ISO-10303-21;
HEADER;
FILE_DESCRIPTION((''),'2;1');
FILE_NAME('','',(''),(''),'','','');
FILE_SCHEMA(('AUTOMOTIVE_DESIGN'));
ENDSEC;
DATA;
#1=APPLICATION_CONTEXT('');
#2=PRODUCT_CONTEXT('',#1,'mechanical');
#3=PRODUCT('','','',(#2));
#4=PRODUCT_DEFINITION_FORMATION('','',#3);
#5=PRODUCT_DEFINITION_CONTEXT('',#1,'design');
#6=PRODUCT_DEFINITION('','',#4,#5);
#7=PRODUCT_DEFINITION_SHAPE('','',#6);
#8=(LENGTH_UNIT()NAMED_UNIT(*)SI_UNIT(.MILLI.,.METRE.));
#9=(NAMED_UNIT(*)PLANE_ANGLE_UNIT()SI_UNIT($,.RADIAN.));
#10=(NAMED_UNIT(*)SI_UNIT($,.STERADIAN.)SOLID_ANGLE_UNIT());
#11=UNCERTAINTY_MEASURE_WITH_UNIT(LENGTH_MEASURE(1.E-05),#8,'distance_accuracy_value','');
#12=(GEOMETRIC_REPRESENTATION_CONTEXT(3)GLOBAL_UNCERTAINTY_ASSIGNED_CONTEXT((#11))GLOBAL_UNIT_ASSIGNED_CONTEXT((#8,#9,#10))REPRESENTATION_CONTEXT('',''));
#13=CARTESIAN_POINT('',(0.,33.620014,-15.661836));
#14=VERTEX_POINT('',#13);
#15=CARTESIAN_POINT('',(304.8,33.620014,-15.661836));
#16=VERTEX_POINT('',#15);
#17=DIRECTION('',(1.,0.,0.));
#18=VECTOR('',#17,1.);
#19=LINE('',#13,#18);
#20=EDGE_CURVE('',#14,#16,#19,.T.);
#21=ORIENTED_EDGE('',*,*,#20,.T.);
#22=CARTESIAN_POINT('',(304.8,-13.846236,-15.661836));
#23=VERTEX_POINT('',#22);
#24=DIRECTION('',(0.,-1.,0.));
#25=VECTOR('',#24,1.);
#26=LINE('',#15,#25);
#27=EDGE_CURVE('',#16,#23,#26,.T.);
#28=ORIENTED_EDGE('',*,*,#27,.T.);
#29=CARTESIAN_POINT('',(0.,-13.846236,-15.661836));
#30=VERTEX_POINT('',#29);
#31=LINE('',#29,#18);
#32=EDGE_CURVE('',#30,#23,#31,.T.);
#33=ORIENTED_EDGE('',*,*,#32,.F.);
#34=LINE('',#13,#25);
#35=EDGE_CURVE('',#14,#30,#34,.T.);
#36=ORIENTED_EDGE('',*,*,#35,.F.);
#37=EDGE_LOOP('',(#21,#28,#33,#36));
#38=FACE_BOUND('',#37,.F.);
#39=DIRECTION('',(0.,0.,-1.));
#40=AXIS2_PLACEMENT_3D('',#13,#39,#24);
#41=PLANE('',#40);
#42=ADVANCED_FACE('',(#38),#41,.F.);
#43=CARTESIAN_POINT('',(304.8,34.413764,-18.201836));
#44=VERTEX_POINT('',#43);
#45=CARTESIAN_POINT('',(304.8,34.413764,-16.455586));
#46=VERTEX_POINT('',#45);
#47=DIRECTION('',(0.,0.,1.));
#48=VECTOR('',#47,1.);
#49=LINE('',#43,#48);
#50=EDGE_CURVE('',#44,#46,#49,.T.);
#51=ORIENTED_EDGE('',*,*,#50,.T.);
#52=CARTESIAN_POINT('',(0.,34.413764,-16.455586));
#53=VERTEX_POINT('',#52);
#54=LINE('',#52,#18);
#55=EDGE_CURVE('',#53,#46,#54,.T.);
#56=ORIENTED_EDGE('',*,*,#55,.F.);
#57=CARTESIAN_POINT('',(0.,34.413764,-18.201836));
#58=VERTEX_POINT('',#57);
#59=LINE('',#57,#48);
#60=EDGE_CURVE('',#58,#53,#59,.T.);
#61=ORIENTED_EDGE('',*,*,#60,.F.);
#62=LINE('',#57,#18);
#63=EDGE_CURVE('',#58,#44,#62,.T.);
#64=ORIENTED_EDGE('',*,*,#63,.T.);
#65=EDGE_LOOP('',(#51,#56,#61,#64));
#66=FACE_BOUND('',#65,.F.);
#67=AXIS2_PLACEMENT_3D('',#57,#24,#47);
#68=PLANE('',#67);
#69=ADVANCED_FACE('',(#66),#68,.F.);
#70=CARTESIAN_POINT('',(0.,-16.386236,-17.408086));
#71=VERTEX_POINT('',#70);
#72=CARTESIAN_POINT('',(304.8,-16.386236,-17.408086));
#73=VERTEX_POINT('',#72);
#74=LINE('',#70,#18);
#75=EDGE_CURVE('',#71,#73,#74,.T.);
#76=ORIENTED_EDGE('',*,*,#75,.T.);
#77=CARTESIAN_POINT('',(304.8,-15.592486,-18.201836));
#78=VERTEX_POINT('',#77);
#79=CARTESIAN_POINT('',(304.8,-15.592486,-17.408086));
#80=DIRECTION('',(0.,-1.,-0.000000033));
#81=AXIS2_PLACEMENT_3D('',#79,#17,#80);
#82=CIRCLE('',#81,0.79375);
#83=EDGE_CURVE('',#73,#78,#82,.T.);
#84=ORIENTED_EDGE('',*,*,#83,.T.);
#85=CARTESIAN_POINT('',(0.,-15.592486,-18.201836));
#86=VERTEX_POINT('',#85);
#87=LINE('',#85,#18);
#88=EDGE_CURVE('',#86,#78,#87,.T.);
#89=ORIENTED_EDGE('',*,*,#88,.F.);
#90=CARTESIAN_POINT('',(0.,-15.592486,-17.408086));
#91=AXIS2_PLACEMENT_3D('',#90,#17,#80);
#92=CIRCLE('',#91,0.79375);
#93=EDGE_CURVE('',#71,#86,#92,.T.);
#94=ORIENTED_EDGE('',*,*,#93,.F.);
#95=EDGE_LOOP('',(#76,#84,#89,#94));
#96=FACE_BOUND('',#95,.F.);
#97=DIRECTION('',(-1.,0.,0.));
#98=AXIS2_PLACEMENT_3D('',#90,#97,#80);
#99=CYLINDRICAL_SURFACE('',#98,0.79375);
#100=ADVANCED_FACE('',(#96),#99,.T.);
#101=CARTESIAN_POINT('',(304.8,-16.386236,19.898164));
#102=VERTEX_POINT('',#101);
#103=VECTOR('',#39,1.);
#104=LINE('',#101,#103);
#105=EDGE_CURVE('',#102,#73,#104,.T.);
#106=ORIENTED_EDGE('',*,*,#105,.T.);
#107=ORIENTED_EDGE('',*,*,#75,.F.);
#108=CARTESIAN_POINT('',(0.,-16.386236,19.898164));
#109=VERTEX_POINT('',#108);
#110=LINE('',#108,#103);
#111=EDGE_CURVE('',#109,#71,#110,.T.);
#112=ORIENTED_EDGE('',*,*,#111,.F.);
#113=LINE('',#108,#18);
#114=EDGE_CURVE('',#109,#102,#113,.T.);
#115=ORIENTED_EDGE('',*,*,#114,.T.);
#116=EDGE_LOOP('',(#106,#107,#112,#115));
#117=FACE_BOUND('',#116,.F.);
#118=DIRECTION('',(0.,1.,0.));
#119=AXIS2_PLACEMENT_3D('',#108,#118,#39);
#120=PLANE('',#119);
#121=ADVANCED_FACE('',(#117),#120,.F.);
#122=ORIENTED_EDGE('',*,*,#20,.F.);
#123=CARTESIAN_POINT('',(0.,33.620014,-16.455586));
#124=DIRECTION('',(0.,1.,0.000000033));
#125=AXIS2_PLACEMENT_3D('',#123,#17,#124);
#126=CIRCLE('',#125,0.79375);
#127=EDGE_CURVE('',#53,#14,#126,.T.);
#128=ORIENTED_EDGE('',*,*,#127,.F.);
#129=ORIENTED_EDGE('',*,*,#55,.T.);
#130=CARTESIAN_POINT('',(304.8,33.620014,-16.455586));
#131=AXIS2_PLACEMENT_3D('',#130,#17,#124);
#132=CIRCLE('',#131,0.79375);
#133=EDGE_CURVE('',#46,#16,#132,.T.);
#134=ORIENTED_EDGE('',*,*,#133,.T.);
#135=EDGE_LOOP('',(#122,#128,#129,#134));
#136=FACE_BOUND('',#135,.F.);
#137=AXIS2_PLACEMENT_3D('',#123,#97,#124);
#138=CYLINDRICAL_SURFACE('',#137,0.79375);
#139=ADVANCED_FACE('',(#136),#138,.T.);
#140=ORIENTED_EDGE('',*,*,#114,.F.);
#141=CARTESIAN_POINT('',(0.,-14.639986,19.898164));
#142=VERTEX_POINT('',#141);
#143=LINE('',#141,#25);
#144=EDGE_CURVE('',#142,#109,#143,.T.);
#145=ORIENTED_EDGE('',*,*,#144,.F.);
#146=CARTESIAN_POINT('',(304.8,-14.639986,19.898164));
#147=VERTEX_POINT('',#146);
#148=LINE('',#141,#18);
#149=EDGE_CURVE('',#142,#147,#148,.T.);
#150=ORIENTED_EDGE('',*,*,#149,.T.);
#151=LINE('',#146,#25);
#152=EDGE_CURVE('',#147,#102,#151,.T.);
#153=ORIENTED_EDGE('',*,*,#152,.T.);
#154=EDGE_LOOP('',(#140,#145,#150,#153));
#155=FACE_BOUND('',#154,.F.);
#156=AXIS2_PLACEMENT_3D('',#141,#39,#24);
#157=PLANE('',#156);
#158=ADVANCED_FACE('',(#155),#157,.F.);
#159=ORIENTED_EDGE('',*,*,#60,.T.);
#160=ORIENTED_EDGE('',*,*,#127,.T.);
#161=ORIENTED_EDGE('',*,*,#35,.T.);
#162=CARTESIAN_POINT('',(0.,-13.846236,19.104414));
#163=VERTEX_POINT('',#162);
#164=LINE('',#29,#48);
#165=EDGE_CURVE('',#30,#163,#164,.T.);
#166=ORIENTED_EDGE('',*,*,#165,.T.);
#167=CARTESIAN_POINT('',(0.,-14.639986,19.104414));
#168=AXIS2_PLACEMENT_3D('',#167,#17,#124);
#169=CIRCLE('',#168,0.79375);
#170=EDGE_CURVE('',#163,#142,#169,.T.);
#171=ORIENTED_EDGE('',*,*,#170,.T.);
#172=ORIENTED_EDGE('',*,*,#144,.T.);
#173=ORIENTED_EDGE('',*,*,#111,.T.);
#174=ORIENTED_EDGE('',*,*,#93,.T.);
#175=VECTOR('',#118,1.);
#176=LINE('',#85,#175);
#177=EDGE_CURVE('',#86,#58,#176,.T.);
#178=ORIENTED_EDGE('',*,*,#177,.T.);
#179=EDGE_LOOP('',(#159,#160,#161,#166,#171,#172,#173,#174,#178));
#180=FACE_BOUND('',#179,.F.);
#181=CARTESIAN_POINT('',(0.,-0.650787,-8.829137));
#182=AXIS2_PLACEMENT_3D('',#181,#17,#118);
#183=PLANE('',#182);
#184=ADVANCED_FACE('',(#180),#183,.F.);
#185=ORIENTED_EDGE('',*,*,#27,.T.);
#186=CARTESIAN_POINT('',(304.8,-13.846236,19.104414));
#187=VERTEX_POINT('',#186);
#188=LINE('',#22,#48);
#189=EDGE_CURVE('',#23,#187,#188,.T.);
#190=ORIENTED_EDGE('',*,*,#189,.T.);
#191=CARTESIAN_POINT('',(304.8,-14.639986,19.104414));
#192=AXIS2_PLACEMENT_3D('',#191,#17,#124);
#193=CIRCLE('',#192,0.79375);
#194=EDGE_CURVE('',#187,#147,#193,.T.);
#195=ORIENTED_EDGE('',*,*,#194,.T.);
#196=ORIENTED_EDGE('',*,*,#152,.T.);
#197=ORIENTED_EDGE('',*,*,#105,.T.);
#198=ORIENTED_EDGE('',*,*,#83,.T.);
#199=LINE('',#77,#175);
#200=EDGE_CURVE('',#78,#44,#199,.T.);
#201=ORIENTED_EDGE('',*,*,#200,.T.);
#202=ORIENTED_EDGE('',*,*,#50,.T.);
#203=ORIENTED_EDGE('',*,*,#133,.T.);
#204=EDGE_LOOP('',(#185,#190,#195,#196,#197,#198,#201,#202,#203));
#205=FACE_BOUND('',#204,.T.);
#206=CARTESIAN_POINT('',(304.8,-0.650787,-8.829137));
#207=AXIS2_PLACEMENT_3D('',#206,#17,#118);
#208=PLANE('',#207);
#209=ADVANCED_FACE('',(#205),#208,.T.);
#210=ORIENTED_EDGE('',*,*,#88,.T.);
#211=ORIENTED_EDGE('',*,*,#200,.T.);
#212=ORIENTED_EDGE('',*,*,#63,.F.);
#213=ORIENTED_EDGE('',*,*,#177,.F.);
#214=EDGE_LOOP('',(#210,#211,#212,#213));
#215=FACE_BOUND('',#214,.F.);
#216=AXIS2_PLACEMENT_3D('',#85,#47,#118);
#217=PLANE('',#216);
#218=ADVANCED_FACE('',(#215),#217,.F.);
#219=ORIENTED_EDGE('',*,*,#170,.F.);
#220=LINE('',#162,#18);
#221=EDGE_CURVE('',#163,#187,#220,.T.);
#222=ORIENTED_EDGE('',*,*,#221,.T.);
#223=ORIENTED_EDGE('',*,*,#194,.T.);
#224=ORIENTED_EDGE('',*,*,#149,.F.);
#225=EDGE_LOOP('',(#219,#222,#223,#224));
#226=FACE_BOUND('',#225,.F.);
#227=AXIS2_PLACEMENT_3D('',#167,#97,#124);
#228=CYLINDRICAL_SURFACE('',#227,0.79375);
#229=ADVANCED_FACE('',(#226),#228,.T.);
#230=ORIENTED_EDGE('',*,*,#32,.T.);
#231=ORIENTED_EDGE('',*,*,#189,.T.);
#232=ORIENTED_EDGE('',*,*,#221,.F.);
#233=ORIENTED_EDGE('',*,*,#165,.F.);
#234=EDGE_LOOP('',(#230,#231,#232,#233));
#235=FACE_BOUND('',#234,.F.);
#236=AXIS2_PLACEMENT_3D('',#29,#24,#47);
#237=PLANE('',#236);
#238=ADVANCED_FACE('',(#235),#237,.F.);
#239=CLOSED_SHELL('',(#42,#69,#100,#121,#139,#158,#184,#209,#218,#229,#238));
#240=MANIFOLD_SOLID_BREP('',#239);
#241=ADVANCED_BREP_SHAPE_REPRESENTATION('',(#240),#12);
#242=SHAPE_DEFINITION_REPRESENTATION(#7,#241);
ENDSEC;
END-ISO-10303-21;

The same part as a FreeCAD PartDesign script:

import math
import FreeCAD as App
import Part
import Sketcher
Q = App.Units.Quantity

doc = App.newDocument("Part")
params = doc.addObject("Spreadsheet::Sheet", "Params")
for row, (alias, value) in enumerate([
    ("sketch1_radius", "0.03125 in"),
    ("pad1_length", "12 in"),
], start=1):
    params.set(f"A{row}", alias)
    params.set(f"B{row}", "=" + value)
    params.setAlias(f"B{row}", alias)

body = doc.addObject("PartDesign::Body", "Body")

# Sketch on YZ plane
sketch1 = doc.addObject("Sketcher::SketchObject", "Sketch")
body.addObject(sketch1)
sketch1.AttachmentSupport = (doc.YZ_Plane, [""])
sketch1.MapMode = "FlatFace"
sketch1.addGeometry(Part.LineSegment(App.Vector(-14.639986, 19.898164, 0), App.Vector(-16.386236, 19.898164, 0)), False)
sketch1.addGeometry(Part.LineSegment(App.Vector(-16.386236, 19.898164, 0), App.Vector(-16.386236, -17.408086, 0)), False)
sketch1.addGeometry(Part.ArcOfCircle(Part.Circle(App.Vector(-15.592486, -17.408086, 0), App.Vector(0, 0, 1), 0.79375), math.radians(-179.999998), math.radians(-90.000002)), False)
sketch1.addGeometry(Part.LineSegment(App.Vector(-15.592486, -18.201836, 0), App.Vector(34.413764, -18.201836, 0)), False)
sketch1.addGeometry(Part.LineSegment(App.Vector(34.413764, -18.201836, 0), App.Vector(34.413764, -16.455586, 0)), False)
sketch1.addGeometry(Part.ArcOfCircle(Part.Circle(App.Vector(33.620014, -16.455586, 0), App.Vector(0, 0, 1), 0.79375), math.radians(0.000002), math.radians(89.999998)), False)
sketch1.addGeometry(Part.LineSegment(App.Vector(33.620014, -15.661836, 0), App.Vector(-13.846236, -15.661836, 0)), False)
sketch1.addGeometry(Part.LineSegment(App.Vector(-13.846236, -15.661836, 0), App.Vector(-13.846236, 19.104414, 0)), False)
sketch1.addGeometry(Part.ArcOfCircle(Part.Circle(App.Vector(-14.639986, 19.104414, 0), App.Vector(0, 0, 1), 0.79375), math.radians(0.000002), math.radians(89.999998)), False)
sketch1.addConstraint(Sketcher.Constraint("Coincident", 0, 2, 1, 1))
sketch1.addConstraint(Sketcher.Constraint("Tangent", 1, 2, 2, 1))
sketch1.addConstraint(Sketcher.Constraint("Tangent", 2, 2, 3, 1))
sketch1.addConstraint(Sketcher.Constraint("Coincident", 3, 2, 4, 1))
sketch1.addConstraint(Sketcher.Constraint("Tangent", 4, 2, 5, 1))
sketch1.addConstraint(Sketcher.Constraint("Tangent", 5, 2, 6, 1))
sketch1.addConstraint(Sketcher.Constraint("Coincident", 6, 2, 7, 1))
sketch1.addConstraint(Sketcher.Constraint("Tangent", 7, 2, 8, 1))
sketch1.addConstraint(Sketcher.Constraint("Tangent", 8, 2, 0, 1))
sketch1.addConstraint(Sketcher.Constraint("Horizontal", 0))
sketch1.addConstraint(Sketcher.Constraint("Vertical", 1))
sketch1.addConstraint(Sketcher.Constraint("Horizontal", 3))
sketch1.addConstraint(Sketcher.Constraint("Vertical", 4))
sketch1.addConstraint(Sketcher.Constraint("Horizontal", 6))
sketch1.addConstraint(Sketcher.Constraint("Vertical", 7))
sketch1.addConstraint(Sketcher.Constraint("Equal", 2, 5))
sketch1.addConstraint(Sketcher.Constraint("Equal", 5, 8))
sketch1.addConstraint(Sketcher.Constraint("Equal", 0, 4))
sketch1.addConstraint(Sketcher.Constraint("Radius", 2, Q("0.03125 in")))
sketch1.addConstraint(Sketcher.Constraint("DistanceX", 1, 2, 3, 2, Q("2 in")))
sketch1.addConstraint(Sketcher.Constraint("DistanceX", 8, 3, 5, 3, Q("1.9 in")))
sketch1.addConstraint(Sketcher.Constraint("DistanceY", 5, 3, 8, 3, Q("1.4 in")))
sketch1.addConstraint(Sketcher.Constraint("DistanceX", 2, 3, -1, 1, Q("15.592486 mm")))
sketch1.addConstraint(Sketcher.Constraint("DistanceY", 2, 3, -1, 1, Q("17.408086 mm")))
sketch1.setExpression("Constraints[18]", "Params.sketch1_radius")
pad1 = doc.addObject("PartDesign::Pad", "Pad")
body.addObject(pad1)
pad1.Profile = sketch1
pad1.setExpression("Length", "Params.pad1_length")

doc.recompute()
